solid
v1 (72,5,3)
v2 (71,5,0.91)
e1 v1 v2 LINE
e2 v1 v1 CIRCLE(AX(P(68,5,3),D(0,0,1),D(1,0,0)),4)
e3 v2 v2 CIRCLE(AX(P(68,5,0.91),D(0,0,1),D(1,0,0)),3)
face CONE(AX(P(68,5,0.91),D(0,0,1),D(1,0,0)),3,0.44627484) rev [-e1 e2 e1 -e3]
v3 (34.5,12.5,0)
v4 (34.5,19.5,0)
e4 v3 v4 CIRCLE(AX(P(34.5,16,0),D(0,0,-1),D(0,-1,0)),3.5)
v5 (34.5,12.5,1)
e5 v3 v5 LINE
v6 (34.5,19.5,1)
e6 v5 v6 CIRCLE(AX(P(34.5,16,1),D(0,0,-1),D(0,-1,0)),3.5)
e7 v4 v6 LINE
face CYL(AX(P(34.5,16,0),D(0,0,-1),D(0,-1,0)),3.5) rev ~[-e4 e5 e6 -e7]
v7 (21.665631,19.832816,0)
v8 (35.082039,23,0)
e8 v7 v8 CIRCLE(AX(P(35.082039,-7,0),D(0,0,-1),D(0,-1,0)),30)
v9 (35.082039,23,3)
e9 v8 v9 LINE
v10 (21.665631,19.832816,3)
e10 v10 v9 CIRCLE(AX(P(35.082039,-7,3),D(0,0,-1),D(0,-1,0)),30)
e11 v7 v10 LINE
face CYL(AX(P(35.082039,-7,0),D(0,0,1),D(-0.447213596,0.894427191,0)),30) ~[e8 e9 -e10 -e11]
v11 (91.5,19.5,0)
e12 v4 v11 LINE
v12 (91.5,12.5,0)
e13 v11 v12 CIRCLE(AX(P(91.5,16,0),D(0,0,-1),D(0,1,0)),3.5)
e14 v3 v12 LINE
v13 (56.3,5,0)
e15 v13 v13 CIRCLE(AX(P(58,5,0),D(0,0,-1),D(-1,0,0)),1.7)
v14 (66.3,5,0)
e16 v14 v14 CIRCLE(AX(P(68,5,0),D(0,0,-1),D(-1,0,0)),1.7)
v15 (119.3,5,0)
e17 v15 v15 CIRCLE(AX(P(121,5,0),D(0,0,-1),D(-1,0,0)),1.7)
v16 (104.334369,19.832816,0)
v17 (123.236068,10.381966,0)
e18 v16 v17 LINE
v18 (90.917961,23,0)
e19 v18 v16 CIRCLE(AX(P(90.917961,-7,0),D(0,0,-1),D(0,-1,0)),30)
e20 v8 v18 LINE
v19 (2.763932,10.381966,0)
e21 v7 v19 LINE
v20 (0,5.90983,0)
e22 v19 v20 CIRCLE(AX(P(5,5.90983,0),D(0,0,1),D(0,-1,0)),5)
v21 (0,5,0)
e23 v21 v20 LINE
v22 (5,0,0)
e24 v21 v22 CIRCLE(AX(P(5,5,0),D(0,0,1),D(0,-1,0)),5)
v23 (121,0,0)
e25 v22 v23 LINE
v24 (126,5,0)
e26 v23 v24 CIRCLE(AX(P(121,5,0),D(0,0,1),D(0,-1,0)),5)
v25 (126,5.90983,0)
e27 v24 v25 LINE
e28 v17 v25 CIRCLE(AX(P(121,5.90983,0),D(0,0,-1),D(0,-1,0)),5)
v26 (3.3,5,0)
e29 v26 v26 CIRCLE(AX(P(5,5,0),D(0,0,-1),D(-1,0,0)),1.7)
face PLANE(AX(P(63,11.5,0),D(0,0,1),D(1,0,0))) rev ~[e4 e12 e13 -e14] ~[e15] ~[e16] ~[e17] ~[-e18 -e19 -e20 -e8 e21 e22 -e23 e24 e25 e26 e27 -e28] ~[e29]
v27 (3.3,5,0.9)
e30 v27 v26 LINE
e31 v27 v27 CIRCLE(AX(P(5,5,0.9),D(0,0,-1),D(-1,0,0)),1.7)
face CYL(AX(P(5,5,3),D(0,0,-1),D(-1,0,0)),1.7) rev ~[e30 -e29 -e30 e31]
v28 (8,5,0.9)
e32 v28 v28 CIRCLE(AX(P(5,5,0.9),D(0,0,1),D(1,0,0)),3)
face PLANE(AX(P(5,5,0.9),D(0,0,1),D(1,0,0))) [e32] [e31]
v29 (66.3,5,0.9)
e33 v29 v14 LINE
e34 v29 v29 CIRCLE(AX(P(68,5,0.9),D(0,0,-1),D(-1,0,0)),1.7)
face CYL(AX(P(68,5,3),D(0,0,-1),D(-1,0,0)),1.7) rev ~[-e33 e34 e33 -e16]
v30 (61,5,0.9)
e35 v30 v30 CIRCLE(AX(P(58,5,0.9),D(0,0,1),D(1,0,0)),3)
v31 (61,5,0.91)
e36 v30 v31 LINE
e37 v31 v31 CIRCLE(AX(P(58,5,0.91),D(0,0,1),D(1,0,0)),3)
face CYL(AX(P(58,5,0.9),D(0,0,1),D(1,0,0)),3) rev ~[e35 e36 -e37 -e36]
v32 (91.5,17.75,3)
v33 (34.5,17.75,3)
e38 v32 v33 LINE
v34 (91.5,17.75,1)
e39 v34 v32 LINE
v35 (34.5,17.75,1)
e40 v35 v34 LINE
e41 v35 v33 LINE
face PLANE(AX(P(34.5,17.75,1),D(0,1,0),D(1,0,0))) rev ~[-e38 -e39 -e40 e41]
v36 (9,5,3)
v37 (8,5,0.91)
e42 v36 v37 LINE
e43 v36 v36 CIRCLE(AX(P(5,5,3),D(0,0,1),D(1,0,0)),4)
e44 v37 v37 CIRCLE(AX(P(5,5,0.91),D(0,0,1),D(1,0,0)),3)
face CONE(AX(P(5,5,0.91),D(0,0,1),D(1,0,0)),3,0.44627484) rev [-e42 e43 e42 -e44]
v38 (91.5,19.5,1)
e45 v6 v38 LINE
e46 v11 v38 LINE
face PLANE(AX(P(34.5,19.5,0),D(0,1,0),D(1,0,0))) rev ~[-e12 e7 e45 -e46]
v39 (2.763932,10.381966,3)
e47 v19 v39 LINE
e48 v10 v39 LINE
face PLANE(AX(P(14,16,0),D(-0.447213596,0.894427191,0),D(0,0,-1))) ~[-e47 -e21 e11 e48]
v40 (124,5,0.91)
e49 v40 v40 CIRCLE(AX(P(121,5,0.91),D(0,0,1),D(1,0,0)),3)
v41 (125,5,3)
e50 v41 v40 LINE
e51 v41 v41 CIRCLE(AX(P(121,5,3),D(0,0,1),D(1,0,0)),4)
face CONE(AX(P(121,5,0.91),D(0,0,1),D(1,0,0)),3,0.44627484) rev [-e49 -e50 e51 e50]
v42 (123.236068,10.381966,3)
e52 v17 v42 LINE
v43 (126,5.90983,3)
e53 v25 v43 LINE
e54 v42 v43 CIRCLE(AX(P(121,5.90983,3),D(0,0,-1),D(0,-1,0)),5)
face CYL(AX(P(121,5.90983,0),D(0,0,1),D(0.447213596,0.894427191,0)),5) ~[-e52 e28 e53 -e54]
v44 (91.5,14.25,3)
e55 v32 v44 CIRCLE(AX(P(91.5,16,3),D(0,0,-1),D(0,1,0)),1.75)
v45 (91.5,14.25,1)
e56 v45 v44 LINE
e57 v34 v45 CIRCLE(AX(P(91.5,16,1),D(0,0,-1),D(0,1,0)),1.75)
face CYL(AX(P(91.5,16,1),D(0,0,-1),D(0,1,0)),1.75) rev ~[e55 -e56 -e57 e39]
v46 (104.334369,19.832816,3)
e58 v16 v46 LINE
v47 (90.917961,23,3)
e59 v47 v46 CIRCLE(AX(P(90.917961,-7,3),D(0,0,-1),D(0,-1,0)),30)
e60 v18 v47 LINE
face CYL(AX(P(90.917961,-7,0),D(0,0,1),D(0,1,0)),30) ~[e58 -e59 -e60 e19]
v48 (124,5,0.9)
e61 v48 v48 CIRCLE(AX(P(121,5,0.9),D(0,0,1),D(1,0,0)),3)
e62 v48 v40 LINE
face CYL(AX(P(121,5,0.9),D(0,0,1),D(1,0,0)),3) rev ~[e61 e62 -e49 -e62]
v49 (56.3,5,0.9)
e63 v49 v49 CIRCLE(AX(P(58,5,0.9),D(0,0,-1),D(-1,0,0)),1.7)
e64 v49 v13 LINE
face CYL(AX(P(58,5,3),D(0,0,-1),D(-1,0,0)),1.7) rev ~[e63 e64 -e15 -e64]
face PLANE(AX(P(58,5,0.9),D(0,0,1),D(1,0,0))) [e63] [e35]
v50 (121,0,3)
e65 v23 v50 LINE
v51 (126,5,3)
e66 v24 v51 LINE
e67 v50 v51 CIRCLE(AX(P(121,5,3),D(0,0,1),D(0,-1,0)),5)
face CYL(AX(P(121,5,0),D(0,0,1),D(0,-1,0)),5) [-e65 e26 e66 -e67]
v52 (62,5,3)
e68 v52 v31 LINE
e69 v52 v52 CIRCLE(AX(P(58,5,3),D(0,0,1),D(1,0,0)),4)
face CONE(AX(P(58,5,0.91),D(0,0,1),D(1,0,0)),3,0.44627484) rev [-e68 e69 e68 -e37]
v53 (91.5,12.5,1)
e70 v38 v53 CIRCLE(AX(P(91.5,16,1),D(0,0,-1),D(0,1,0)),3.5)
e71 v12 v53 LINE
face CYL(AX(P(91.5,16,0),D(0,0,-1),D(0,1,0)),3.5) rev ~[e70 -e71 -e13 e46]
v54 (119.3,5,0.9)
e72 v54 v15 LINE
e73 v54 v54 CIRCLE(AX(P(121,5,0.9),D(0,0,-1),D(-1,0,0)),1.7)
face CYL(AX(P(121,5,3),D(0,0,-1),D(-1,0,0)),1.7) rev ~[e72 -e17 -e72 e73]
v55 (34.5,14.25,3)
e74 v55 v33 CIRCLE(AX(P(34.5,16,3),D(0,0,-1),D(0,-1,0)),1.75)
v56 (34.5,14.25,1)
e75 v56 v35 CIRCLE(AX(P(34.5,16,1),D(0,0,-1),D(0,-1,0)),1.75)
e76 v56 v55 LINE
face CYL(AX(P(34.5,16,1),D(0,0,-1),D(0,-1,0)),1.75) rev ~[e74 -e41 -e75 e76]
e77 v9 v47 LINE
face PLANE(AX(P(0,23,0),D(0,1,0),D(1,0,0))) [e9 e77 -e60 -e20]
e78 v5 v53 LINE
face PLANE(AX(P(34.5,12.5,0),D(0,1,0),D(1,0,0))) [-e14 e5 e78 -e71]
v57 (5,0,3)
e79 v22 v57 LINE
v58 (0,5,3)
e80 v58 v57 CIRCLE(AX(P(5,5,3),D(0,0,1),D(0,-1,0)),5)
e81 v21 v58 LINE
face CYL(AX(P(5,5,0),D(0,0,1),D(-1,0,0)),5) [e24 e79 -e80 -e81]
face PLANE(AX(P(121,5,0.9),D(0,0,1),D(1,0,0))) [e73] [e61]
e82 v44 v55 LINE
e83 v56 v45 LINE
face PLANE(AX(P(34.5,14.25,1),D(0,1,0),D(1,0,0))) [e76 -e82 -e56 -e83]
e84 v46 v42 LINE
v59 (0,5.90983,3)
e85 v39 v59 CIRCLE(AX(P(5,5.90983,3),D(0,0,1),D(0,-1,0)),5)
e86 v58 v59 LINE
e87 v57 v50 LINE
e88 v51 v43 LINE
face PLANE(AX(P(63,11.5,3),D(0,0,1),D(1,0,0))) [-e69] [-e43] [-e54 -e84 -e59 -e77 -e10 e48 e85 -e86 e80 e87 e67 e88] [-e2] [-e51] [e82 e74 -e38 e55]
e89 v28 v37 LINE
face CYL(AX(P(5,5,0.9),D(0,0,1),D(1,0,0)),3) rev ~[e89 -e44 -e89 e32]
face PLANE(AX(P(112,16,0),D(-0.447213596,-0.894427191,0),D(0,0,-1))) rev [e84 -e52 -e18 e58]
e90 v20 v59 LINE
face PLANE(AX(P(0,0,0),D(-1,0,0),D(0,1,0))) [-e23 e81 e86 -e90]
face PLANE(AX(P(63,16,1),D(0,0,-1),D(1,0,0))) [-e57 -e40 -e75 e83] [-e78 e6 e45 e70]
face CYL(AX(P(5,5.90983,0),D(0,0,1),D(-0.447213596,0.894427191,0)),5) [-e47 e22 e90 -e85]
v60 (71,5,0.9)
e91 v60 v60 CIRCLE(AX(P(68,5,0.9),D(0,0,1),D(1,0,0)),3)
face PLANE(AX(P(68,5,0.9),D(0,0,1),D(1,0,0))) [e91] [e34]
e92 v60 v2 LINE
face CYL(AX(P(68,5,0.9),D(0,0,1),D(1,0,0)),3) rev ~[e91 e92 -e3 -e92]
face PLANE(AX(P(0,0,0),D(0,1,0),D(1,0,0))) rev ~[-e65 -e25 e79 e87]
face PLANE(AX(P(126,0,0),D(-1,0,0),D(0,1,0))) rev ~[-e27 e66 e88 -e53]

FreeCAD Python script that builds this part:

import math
import FreeCAD as App
import Part
import Sketcher
from FreeCAD import Vector


def edges_at(feature, points):
    """Names of the edges that pass closest to the given points."""
    edges = feature.Shape.Edges
    near = lambda p: min(range(len(edges)), key=lambda i: edges[i].distToShape(Part.Vertex(*p))[0])
    return sorted({f"Edge{near(p) + 1}" for p in points})

doc = App.newDocument("Part")
body = doc.addObject("PartDesign::Body", "Body")

# Sketch on XY plane
sketch1 = doc.addObject("Sketcher::SketchObject", "Sketch")
body.addObject(sketch1)
sketch1.AttachmentSupport = (doc.XY_Plane, [""])
sketch1.MapMode = "FlatFace"
sketch1.addGeometry([
    Part.LineSegment(Vector(0, 23, 0), Vector(0, 0, 0)),
    Part.LineSegment(Vector(0, 0, 0), Vector(126, 0, 0)),
    Part.LineSegment(Vector(126, 0, 0), Vector(126, 23, 0)),
    Part.LineSegment(Vector(126, 23, 0), Vector(0, 23, 0)),
], False)
sketch1.addConstraint([
    Sketcher.Constraint("Coincident", 0, 2, 1, 1),
    Sketcher.Constraint("Coincident", 1, 2, 2, 1),
    Sketcher.Constraint("Coincident", 2, 2, 3, 1),
    Sketcher.Constraint("Coincident", 3, 2, 0, 1),
    Sketcher.Constraint("Vertical", 0),
    Sketcher.Constraint("Horizontal", 1),
    Sketcher.Constraint("Vertical", 2),
    Sketcher.Constraint("Horizontal", 3),
    Sketcher.Constraint("Coincident", 0, 2, -1, 1),
    Sketcher.Constraint("DistanceX", 1, 1, 1, 2, 126.0),
    Sketcher.Constraint("DistanceY", 0, 2, 0, 1, 23.0),
])
pad1 = doc.addObject("PartDesign::Pad", "Pad")
body.addObject(pad1)
pad1.Profile = sketch1
pad1.Length = 3

# Sketch on XY plane
sketch2 = doc.addObject("Sketcher::SketchObject", "Sketch001")
body.addObject(sketch2)
sketch2.AttachmentSupport = (doc.XY_Plane, [""])
sketch2.MapMode = "FlatFace"
sketch2.AttachmentOffset = App.Placement(Vector(0, 0, 3), App.Rotation())
sketch2.addGeometry([
    Part.Circle(Vector(5, 5, 0), Vector(0, 0, 1), 1.7),
    Part.Circle(Vector(58, 5, 0), Vector(0, 0, 1), 1.7),
    Part.Circle(Vector(68, 5, 0), Vector(0, 0, 1), 1.7),
    Part.Circle(Vector(121, 5, 0), Vector(0, 0, 1), 1.7),
], False)
sketch2.addConstraint([
    Sketcher.Constraint("Equal", 0, 1),
    Sketcher.Constraint("Equal", 1, 2),
    Sketcher.Constraint("Equal", 2, 3),
    Sketcher.Constraint("Horizontal", 0, 3, 1, 3),
    Sketcher.Constraint("Horizontal", 1, 3, 2, 3),
    Sketcher.Constraint("Horizontal", 2, 3, 3, 3),
    Sketcher.Constraint("Diameter", 0, 3.4),
    Sketcher.Constraint("DistanceX", -1, 1, 0, 3, 5.0),
    Sketcher.Constraint("DistanceY", -1, 1, 0, 3, 5.0),
    Sketcher.Constraint("DistanceX", -1, 1, 1, 3, 58.0),
    Sketcher.Constraint("DistanceX", -1, 1, 2, 3, 68.0),
    Sketcher.Constraint("DistanceX", -1, 1, 3, 3, 121.0),
])
doc.recompute()
hole = doc.addObject("PartDesign::Hole", "Hole")
body.addObject(hole)
hole.Profile = sketch2
hole.ThreadType = "None"
hole.Diameter = 3.4
hole.DepthType = "Dimension"
hole.Depth = 24
hole.DrillPoint = "Flat"
hole.HoleCutType = "Counterbore"
hole.HoleCutDiameter = 6
hole.HoleCutDepth = 2.1

# Sketch on XY plane
sketch3 = doc.addObject("Sketcher::SketchObject", "Sketch002")
body.addObject(sketch3)
sketch3.AttachmentSupport = (doc.XY_Plane, [""])
sketch3.MapMode = "FlatFace"
sketch3.addGeometry([
    Part.ArcOfCircle(Part.Circle(Vector(34.5, 16, 0), Vector(0, 0, 1), 3.5), math.radians(90), math.radians(270)),
    Part.LineSegment(Vector(34.5, 19.5, 0), Vector(91.5, 19.5, 0)),
    Part.ArcOfCircle(Part.Circle(Vector(91.5, 16, 0), Vector(0, 0, 1), 3.5), math.radians(-90), math.radians(90)),
    Part.LineSegment(Vector(91.5, 12.5, 0), Vector(34.5, 12.5, 0)),
], False)
sketch3.addConstraint([
    Sketcher.Constraint("Tangent", 0, 1, 1, 1),
    Sketcher.Constraint("Tangent", 1, 2, 2, 2),
    Sketcher.Constraint("Tangent", 2, 1, 3, 1),
    Sketcher.Constraint("Tangent", 3, 2, 0, 2),
    Sketcher.Constraint("Horizontal", 1),
    Sketcher.Constraint("Horizontal", 3),
    Sketcher.Constraint("Radius", 0, 3.5),
    Sketcher.Constraint("DistanceX", 1, 1, 1, 2, 57.0),
    Sketcher.Constraint("DistanceY", -1, 1, 0, 3, 16.0),
    Sketcher.Constraint("DistanceX", -1, 1, 0, 3, 34.5),
])
pocket1 = doc.addObject("PartDesign::Pocket", "Pocket")
body.addObject(pocket1)
pocket1.Profile = sketch3
pocket1.Length = 1
pocket1.Reversed = True

# Sketch on XY plane
sketch4 = doc.addObject("Sketcher::SketchObject", "Sketch003")
body.addObject(sketch4)
sketch4.AttachmentSupport = (doc.XY_Plane, [""])
sketch4.MapMode = "FlatFace"
sketch4.AttachmentOffset = App.Placement(Vector(0, 0, 1), App.Rotation())
sketch4.addGeometry([
    Part.ArcOfCircle(Part.Circle(Vector(34.5, 16, 0), Vector(0, 0, 1), 1.8), math.radians(90), math.radians(270)),
    Part.LineSegment(Vector(34.5, 17.8, 0), Vector(91.5, 17.8, 0)),
    Part.ArcOfCircle(Part.Circle(Vector(91.5, 16, 0), Vector(0, 0, 1), 1.8), math.radians(-90), math.radians(90)),
    Part.LineSegment(Vector(91.5, 14.2, 0), Vector(34.5, 14.2, 0)),
], False)
sketch4.addConstraint([
    Sketcher.Constraint("Tangent", 0, 1, 1, 1),
    Sketcher.Constraint("Tangent", 1, 2, 2, 2),
    Sketcher.Constraint("Tangent", 2, 1, 3, 1),
    Sketcher.Constraint("Tangent", 3, 2, 0, 2),
    Sketcher.Constraint("Horizontal", 1),
    Sketcher.Constraint("Horizontal", 3),
    Sketcher.Constraint("DistanceX", 1, 1, 1, 2, 57.0),
    Sketcher.Constraint("Radius", 0, 1.75),
    Sketcher.Constraint("DistanceY", -1, 1, 0, 3, 16.0),
    Sketcher.Constraint("DistanceX", -1, 1, 0, 3, 34.5),
])
pocket2 = doc.addObject("PartDesign::Pocket", "Pocket001")
body.addObject(pocket2)
pocket2.Profile = sketch4
pocket2.Length = 5
pocket2.Reversed = True
doc.recompute()

chamfer = doc.addObject("PartDesign::Chamfer", "Chamfer")
body.addObject(chamfer)
chamfer.Base = (pocket2, edges_at(pocket2, [
    (2, 5, 3),
    (55, 5, 3),
    (65, 5, 3),
    (118, 5, 3),
]))
chamfer.ChamferType = "Two distances"
chamfer.Size = 1
chamfer.Size2 = 2.09
doc.recompute()

fillet = doc.addObject("PartDesign::Fillet", "Fillet")
body.addObject(fillet)
fillet.Base = (chamfer, edges_at(chamfer, [(0, 0, 1.5), (126, 0, 1.5)]))
fillet.Radius = 5
doc.recompute()

chamfer2 = doc.addObject("PartDesign::Chamfer", "Chamfer001")
body.addObject(chamfer2)
chamfer2.Base = (fillet, edges_at(fillet, [(126, 23, 1.5)]))
chamfer2.ChamferType = "Two distances"
chamfer2.Size = 28
chamfer2.Size2 = 14
doc.recompute()

chamfer3 = doc.addObject("PartDesign::Chamfer", "Chamfer002")
body.addObject(chamfer3)
chamfer3.Base = (chamfer2, edges_at(chamfer2, [(0, 23, 1.5)]))
chamfer3.ChamferType = "Two distances"
chamfer3.Size = 28
chamfer3.Size2 = 14
doc.recompute()

fillet2 = doc.addObject("PartDesign::Fillet", "Fillet001")
body.addObject(fillet2)
fillet2.Base = (chamfer3, edges_at(chamfer3, [(0, 9, 1.5), (126, 9, 1.5)]))
fillet2.Radius = 5
doc.recompute()

fillet3 = doc.addObject("PartDesign::Fillet", "Fillet002")
body.addObject(fillet3)
fillet3.Base = (fillet2, edges_at(fillet2, [(28, 23, 1.5), (98, 23, 1.5)]))
fillet3.Radius = 30

doc.recompute()
